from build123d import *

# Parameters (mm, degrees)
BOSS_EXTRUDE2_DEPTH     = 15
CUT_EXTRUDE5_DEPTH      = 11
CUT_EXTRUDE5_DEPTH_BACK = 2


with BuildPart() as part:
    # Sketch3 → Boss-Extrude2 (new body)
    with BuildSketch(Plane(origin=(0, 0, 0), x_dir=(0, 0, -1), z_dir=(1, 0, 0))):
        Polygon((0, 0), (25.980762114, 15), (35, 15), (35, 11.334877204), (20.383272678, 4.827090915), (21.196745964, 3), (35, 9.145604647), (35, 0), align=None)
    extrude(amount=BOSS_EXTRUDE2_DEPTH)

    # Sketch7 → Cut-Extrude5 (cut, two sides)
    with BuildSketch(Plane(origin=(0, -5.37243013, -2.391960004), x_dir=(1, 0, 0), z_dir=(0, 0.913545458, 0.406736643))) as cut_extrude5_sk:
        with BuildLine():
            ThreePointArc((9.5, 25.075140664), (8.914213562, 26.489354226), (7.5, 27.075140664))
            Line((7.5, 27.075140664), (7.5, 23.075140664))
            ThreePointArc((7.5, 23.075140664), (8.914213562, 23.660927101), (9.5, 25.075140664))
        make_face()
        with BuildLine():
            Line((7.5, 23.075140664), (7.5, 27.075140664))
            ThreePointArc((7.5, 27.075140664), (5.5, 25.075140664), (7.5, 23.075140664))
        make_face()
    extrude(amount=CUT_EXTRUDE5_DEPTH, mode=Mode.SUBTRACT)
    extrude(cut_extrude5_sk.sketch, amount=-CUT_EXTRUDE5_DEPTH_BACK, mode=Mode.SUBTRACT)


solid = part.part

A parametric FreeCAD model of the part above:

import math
import FreeCAD as App
import Part
import Sketcher
from FreeCAD import Vector
Q = App.Units.Quantity

doc = App.newDocument("Part")
body = doc.addObject("PartDesign::Body", "Body")

# Sketch on YZ plane
sketch1 = body.newObject("Sketcher::SketchObject", "Sketch")
sketch1.AttachmentSupport = (doc.getObject("YZ_Plane"), [""])
sketch1.MapMode = "FlatFace"
sketch1.addGeometry(Part.LineSegment(Vector(15, -25.980762, 0), Vector(0, 0, 0)), False)
sketch1.addGeometry(Part.LineSegment(Vector(0, 0, 0), Vector(0, -35, 0)), False)
sketch1.addGeometry(Part.LineSegment(Vector(0, -35, 0), Vector(9.145605, -35, 0)), False)
sketch1.addGeometry(Part.LineSegment(Vector(9.145605, -35, 0), Vector(3, -21.196746, 0)), False)
sketch1.addGeometry(Part.LineSegment(Vector(3, -21.196746, 0), Vector(4.827091, -20.383273, 0)), False)
sketch1.addGeometry(Part.LineSegment(Vector(4.827091, -20.383273, 0), Vector(11.334877, -35, 0)), False)
sketch1.addGeometry(Part.LineSegment(Vector(11.334877, -35, 0), Vector(15, -35, 0)), False)
sketch1.addGeometry(Part.LineSegment(Vector(15, -35, 0), Vector(15, -25.980762, 0)), False)
sketch1.addConstraint(Sketcher.Constraint("Coincident", 0, 2, 1, 1))
sketch1.addConstraint(Sketcher.Constraint("Coincident", 1, 2, 2, 1))
sketch1.addConstraint(Sketcher.Constraint("Coincident", 2, 2, 3, 1))
sketch1.addConstraint(Sketcher.Constraint("Coincident", 3, 2, 4, 1))
sketch1.addConstraint(Sketcher.Constraint("Coincident", 4, 2, 5, 1))
sketch1.addConstraint(Sketcher.Constraint("Coincident", 5, 2, 6, 1))
sketch1.addConstraint(Sketcher.Constraint("Coincident", 6, 2, 7, 1))
sketch1.addConstraint(Sketcher.Constraint("Coincident", 7, 2, 0, 1))
sketch1.addConstraint(Sketcher.Constraint("Vertical", 1))
sketch1.addConstraint(Sketcher.Constraint("Horizontal", 2))
sketch1.addConstraint(Sketcher.Constraint("Horizontal", 6))
sketch1.addConstraint(Sketcher.Constraint("Vertical", 7))
sketch1.addConstraint(Sketcher.Constraint("Coincident", 0, 2, -1, 1))
sketch1.addConstraint(Sketcher.Constraint("Perpendicular", 3, 4))
sketch1.addConstraint(Sketcher.Constraint("Perpendicular", 4, 5))
sketch1.addConstraint(Sketcher.Constraint("Horizontal", 2, 2, 5, 2))
sketch1.addConstraint(Sketcher.Constraint("DistanceY", 1, 2, 1, 1, Q("35 mm")))
sketch1.addConstraint(Sketcher.Constraint("Angle", 0, Q("120 deg")))
sketch1.addConstraint(Sketcher.Constraint("Angle", 3, Q("114 deg")))
sketch1.addConstraint(Sketcher.Constraint("Distance", 0, Q("30 mm")))
sketch1.addConstraint(Sketcher.Constraint("Distance", 4, Q("2 mm")))
sketch1.addConstraint(Sketcher.Constraint("Distance", 5, Q("16 mm")))
sketch1.addConstraint(Sketcher.Constraint("DistanceX", -1, 1, 3, 2, Q("3 mm")))
pad1 = body.newObject("PartDesign::Pad", "Pad")
pad1.Profile = sketch1
pad1.Length = 15

# Sketch on an angled plane
sketch2 = body.newObject("Sketcher::SketchObject", "Sketch001")
sketch2.Placement = App.Placement(Vector(0, -5.37243, -2.39196), App.Rotation(Vector(1, 0, 0), Vector(0, 0.406736643, -0.913545458), Vector(0, 0.913545458, 0.406736643), "ZXY"))
sketch2.addGeometry(Part.ArcOfCircle(Part.Circle(Vector(7.5, 25.075141, 0), Vector(0, 0, 1), 2), math.radians(0), math.radians(90)), False)
sketch2.addGeometry(Part.ArcOfCircle(Part.Circle(Vector(7.5, 25.075141, 0), Vector(0, 0, 1), 2), math.radians(90), math.radians(270)), False)
sketch2.addGeometry(Part.ArcOfCircle(Part.Circle(Vector(7.5, 25.075141, 0), Vector(0, 0, 1), 2), math.radians(-90), math.radians(0)), False)
sketch2.addConstraint(Sketcher.Constraint("Tangent", 0, 2, 1, 1))
sketch2.addConstraint(Sketcher.Constraint("Tangent", 1, 2, 2, 1))
sketch2.addConstraint(Sketcher.Constraint("Tangent", 2, 2, 0, 1))
sketch2.addConstraint(Sketcher.Constraint("Horizontal", 1, 3, 2, 2))
sketch2.addConstraint(Sketcher.Constraint("Vertical", 2, 3, 0, 2))
sketch2.addConstraint(Sketcher.Constraint("Vertical", 0, 2, 1, 2))
sketch2.addConstraint(Sketcher.Constraint("Radius", 0, Q("2 mm")))
sketch2.addConstraint(Sketcher.Constraint("DistanceX", -1, 1, 0, 3, Q("7.5 mm")))
sketch2.addConstraint(Sketcher.Constraint("DistanceY", -1, 1, 0, 3, Q("25.075141 mm")))
pocket1 = body.newObject("PartDesign::Pocket", "Pocket")
pocket1.Profile = sketch2
pocket1.Type = "TwoLengths"
pocket1.Length = 11
pocket1.Length2 = 2
pocket1.Reversed = True

doc.recompute()
